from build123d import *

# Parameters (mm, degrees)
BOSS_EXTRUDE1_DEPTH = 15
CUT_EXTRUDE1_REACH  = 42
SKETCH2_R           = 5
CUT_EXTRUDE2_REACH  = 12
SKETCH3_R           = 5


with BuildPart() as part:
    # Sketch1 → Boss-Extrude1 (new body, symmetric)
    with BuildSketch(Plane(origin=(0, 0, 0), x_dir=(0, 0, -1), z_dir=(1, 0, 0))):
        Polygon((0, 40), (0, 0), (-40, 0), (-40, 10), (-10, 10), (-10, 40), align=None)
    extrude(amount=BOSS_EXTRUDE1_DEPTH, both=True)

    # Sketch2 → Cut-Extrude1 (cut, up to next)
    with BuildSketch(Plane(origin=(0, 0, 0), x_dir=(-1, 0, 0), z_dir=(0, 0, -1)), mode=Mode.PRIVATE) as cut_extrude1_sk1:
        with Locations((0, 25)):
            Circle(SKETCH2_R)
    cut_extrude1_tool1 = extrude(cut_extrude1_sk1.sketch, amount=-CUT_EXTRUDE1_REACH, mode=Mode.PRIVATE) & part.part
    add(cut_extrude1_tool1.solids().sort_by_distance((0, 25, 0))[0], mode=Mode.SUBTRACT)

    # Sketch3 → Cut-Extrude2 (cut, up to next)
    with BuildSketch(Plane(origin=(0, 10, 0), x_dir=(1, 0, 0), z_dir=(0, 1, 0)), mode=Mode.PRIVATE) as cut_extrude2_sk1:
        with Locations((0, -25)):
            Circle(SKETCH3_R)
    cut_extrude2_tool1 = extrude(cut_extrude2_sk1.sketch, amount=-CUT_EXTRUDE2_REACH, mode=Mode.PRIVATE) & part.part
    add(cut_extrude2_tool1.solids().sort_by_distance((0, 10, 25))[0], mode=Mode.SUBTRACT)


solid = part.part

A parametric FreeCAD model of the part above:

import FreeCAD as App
import Part
import Sketcher
Q = App.Units.Quantity


def add_polygon(sketch, points):
    """Adds a closed chain of lines whose ends are joined by coincident constraints."""
    first, n = sketch.GeometryCount, len(points)
    for a, b in zip(points, points[1:] + points[:1]):
        sketch.addGeometry(Part.LineSegment(App.Vector(*a, 0), App.Vector(*b, 0)), False)
    for i in range(n):
        sketch.addConstraint(Sketcher.Constraint("Coincident", first + i, 2, first + (i + 1) % n, 1))

doc = App.newDocument("Part")
body = doc.addObject("PartDesign::Body", "Body")

# Sketch on YZ plane
sketch1 = body.newObject("Sketcher::SketchObject", "Sketch")
sketch1.AttachmentSupport = (doc.getObject("YZ_Plane"), [""])
sketch1.MapMode = "FlatFace"
add_polygon(sketch1, [(0, 0), (40, 0), (40, 10), (10, 10), (10, 40), (0, 40)])  # lines 0-5
sketch1.addConstraint([
    Sketcher.Constraint("Horizontal", 0),
    Sketcher.Constraint("Vertical", 1),
    Sketcher.Constraint("Horizontal", 2),
    Sketcher.Constraint("Vertical", 3),
    Sketcher.Constraint("Horizontal", 4),
    Sketcher.Constraint("Vertical", 5),
    Sketcher.Constraint("Coincident", 5, 2, -1, 1),
    Sketcher.Constraint("Equal", 4, 1),
    Sketcher.Constraint("Equal", 2, 3),
    Sketcher.Constraint("DistanceX", 0, 1, 0, 2, Q("40 mm")),
    Sketcher.Constraint("DistanceX", 2, 2, 2, 1, Q("30 mm")),
])
pad1 = body.newObject("PartDesign::Pad", "Pad")
pad1.Profile = sketch1
pad1.Length = 30
pad1.Midplane = True

# Sketch on XY plane
sketch2 = body.newObject("Sketcher::SketchObject", "Sketch001")
sketch2.AttachmentSupport = (doc.getObject("XY_Plane"), [""])
sketch2.MapMode = "FlatFace"
sketch2.addGeometry(Part.Circle(App.Vector(0, 25, 0), App.Vector(0, 0, 1), 5), False)
sketch2.addConstraint([
    Sketcher.Constraint("PointOnObject", 0, 3, -2),
    Sketcher.Constraint("Diameter", 0, Q("10 mm")),
    Sketcher.Constraint("DistanceY", -1, 1, 0, 3, Q("25 mm")),
])
pocket1 = body.newObject("PartDesign::Pocket", "Pocket")
pocket1.Profile = sketch2
pocket1.Type = "UpToFirst"
pocket1.Reversed = True

# Sketch on XZ plane
sketch3 = body.newObject("Sketcher::SketchObject", "Sketch002")
sketch3.AttachmentSupport = (doc.getObject("XZ_Plane"), [""])
sketch3.MapMode = "FlatFace"
sketch3.AttachmentOffset = App.Placement(App.Vector(0, 0, -10), App.Rotation())
sketch3.addGeometry(Part.Circle(App.Vector(0, 25, 0), App.Vector(0, 0, 1), 5), False)
sketch3.addConstraint([
    Sketcher.Constraint("PointOnObject", 0, 3, -2),
    Sketcher.Constraint("Diameter", 0, Q("10 mm")),
    Sketcher.Constraint("DistanceY", -1, 1, 0, 3, Q("25 mm")),
])
pocket2 = body.newObject("PartDesign::Pocket", "Pocket001")
pocket2.Profile = sketch3
pocket2.Type = "UpToFirst"
pocket2.Reversed = True

doc.recompute()
